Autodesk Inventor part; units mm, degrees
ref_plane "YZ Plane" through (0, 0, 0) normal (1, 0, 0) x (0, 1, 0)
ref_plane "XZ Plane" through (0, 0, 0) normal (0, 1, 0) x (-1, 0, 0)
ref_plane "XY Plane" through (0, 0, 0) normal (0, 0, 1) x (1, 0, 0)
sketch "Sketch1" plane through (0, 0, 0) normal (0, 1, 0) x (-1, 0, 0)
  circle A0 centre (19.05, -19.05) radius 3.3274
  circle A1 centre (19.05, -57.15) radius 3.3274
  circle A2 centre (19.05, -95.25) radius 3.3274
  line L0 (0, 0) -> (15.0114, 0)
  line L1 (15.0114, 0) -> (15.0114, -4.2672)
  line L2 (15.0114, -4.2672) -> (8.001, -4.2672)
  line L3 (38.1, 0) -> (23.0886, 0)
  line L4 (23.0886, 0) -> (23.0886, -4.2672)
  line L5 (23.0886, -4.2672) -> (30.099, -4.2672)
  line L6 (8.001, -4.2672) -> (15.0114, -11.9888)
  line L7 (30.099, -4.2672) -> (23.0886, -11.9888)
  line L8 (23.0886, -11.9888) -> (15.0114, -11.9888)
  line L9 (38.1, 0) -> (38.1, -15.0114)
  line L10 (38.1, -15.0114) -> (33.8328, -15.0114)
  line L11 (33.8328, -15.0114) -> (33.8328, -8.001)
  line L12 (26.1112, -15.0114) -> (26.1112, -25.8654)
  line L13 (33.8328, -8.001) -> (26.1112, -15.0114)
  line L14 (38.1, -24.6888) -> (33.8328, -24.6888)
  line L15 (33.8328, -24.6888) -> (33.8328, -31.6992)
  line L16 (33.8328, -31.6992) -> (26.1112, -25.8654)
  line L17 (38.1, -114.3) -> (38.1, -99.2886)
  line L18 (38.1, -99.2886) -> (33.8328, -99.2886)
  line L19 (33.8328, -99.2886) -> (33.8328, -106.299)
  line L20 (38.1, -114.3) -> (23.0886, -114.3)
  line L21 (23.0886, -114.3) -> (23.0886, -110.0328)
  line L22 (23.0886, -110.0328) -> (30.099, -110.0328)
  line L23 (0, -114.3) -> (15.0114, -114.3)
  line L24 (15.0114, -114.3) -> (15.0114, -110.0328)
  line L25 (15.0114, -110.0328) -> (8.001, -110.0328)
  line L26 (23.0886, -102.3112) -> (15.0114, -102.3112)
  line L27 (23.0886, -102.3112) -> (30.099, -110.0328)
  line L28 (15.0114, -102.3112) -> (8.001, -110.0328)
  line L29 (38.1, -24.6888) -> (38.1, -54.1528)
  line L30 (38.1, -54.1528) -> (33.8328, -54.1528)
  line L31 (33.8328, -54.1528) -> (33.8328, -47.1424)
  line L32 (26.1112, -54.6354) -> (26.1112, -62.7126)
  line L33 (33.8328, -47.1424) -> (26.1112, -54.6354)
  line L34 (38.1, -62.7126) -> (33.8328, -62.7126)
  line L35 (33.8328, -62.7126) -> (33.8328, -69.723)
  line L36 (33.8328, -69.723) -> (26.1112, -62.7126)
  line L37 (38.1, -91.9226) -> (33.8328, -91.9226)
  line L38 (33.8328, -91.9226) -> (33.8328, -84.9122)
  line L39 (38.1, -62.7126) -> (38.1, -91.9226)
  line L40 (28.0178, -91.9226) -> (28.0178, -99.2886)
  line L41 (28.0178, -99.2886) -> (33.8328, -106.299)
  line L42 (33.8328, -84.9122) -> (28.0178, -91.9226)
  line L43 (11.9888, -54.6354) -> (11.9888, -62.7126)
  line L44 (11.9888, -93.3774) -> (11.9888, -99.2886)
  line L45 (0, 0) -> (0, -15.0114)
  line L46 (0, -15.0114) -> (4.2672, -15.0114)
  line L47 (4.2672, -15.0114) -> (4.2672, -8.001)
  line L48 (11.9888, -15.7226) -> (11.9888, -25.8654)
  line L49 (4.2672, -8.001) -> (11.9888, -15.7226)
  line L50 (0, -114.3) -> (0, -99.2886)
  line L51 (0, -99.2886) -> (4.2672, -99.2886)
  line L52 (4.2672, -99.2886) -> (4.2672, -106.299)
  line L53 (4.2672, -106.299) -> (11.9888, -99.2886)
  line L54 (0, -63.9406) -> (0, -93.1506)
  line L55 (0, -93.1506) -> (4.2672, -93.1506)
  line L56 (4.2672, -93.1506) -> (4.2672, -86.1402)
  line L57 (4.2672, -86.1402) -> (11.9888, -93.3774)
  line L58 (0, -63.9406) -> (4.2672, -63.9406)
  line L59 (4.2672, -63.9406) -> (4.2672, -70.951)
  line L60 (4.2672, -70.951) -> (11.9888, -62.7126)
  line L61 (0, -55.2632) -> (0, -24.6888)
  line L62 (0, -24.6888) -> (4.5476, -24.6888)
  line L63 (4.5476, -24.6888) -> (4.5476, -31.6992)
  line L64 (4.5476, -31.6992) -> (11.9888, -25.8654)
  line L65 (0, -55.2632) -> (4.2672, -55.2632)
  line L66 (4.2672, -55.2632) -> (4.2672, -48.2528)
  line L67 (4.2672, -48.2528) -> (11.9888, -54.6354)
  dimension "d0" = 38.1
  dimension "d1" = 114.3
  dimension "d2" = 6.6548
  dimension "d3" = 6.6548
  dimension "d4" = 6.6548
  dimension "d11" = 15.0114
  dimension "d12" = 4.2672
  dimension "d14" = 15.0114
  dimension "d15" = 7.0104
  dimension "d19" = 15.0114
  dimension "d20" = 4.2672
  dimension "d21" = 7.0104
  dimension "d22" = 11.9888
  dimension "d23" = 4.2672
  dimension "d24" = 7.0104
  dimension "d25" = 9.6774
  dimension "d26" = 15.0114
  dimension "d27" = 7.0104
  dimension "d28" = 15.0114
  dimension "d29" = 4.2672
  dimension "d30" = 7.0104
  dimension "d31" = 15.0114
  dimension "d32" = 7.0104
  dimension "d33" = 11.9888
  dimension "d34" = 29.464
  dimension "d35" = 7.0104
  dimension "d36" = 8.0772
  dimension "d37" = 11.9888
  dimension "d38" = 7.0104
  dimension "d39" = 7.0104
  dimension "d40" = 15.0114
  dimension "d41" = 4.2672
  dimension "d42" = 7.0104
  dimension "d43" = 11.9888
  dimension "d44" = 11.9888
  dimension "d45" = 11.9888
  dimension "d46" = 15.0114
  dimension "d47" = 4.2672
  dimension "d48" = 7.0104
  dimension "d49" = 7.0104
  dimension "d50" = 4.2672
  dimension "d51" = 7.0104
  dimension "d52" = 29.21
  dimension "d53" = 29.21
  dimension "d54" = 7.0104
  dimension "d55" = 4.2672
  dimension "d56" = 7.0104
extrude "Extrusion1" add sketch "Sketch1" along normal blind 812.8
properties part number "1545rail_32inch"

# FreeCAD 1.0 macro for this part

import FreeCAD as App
import Part
import Sketcher
from FreeCAD import Vector
Q = App.Units.Quantity

doc = App.newDocument("Part")
params = doc.addObject("Spreadsheet::Sheet", "Params")
for row, (alias, value) in enumerate([
    ("sketch1_diameter", "0.262 in"),
    ("sketch1_height", "1.15 in"),
    ("sketch1_height2", "1.16 in"),
    ("sketch1_width", "0.591 in"),
    ("sketch1_width2", "0.168 in"),
    ("pad1_length", "32 in"),
], start=1):
    params.set(f"A{row}", alias)
    params.set(f"B{row}", "=" + value)
    params.setAlias(f"B{row}", alias)

body = doc.addObject("PartDesign::Body", "Body")

sketch1 = doc.addObject("Sketcher::SketchObject", "Sketch")
body.addObject(sketch1)
sketch1.AttachmentSupport = (doc.XZ_Plane, [""])
sketch1.MapMode = "FlatFace"
sketch1.addGeometry([
    Part.LineSegment(Vector(-15, 0, 0), Vector(0, 0, 0)),
    Part.LineSegment(Vector(0, 0, 0), Vector(0, -15, 0)),
    Part.LineSegment(Vector(0, -15, 0), Vector(-4.3, -15, 0)),
    Part.LineSegment(Vector(-4.3, -15, 0), Vector(-4.3, -8, 0)),
    Part.LineSegment(Vector(-4.3, -8, 0), Vector(-12, -15.7, 0)),
    Part.LineSegment(Vector(-12, -15.7, 0), Vector(-12, -25.9, 0)),
    Part.LineSegment(Vector(-12, -25.9, 0), Vector(-4.5, -31.7, 0)),
    Part.LineSegment(Vector(-4.5, -31.7, 0), Vector(-4.5, -24.7, 0)),
    Part.LineSegment(Vector(-4.5, -24.7, 0), Vector(0, -24.7, 0)),
    Part.LineSegment(Vector(0, -24.7, 0), Vector(0, -55.3, 0)),
    Part.LineSegment(Vector(0, -55.3, 0), Vector(-4.3, -55.3, 0)),
    Part.LineSegment(Vector(-4.3, -55.3, 0), Vector(-4.3, -48.3, 0)),
    Part.LineSegment(Vector(-4.3, -48.3, 0), Vector(-12, -54.6, 0)),
    Part.LineSegment(Vector(-12, -54.6, 0), Vector(-12, -62.7, 0)),
    Part.LineSegment(Vector(-12, -62.7, 0), Vector(-4.3, -71, 0)),
    Part.LineSegment(Vector(-4.3, -71, 0), Vector(-4.3, -63.9, 0)),
    Part.LineSegment(Vector(-4.3, -63.9, 0), Vector(0, -63.9, 0)),
    Part.LineSegment(Vector(0, -63.9, 0), Vector(0, -93.2, 0)),
    Part.LineSegment(Vector(0, -93.2, 0), Vector(-4.3, -93.2, 0)),
    Part.LineSegment(Vector(-4.3, -93.2, 0), Vector(-4.3, -86.1, 0)),
    Part.LineSegment(Vector(-4.3, -86.1, 0), Vector(-12, -93.4, 0)),
    Part.LineSegment(Vector(-12, -93.4, 0), Vector(-12, -99.3, 0)),
    Part.LineSegment(Vector(-12, -99.3, 0), Vector(-4.3, -106.3, 0)),
    Part.LineSegment(Vector(-4.3, -106.3, 0), Vector(-4.3, -99.3, 0)),
    Part.LineSegment(Vector(-4.3, -99.3, 0), Vector(0, -99.3, 0)),
    Part.LineSegment(Vector(0, -99.3, 0), Vector(0, -114.3, 0)),
    Part.LineSegment(Vector(0, -114.3, 0), Vector(-15, -114.3, 0)),
    Part.LineSegment(Vector(-15, -114.3, 0), Vector(-15, -110, 0)),
    Part.LineSegment(Vector(-15, -110, 0), Vector(-8, -110, 0)),
    Part.LineSegment(Vector(-8, -110, 0), Vector(-15, -102.3, 0)),
    Part.LineSegment(Vector(-15, -102.3, 0), Vector(-23.1, -102.3, 0)),
    Part.LineSegment(Vector(-23.1, -102.3, 0), Vector(-30.1, -110, 0)),
    Part.LineSegment(Vector(-30.1, -110, 0), Vector(-23.1, -110, 0)),
    Part.LineSegment(Vector(-23.1, -110, 0), Vector(-23.1, -114.3, 0)),
    Part.LineSegment(Vector(-23.1, -114.3, 0), Vector(-38.1, -114.3, 0)),
    Part.LineSegment(Vector(-38.1, -114.3, 0), Vector(-38.1, -99.3, 0)),
    Part.LineSegment(Vector(-38.1, -99.3, 0), Vector(-33.8, -99.3, 0)),
    Part.LineSegment(Vector(-33.8, -99.3, 0), Vector(-33.8, -106.3, 0)),
    Part.LineSegment(Vector(-33.8, -106.3, 0), Vector(-28, -99.3, 0)),
    Part.LineSegment(Vector(-28, -99.3, 0), Vector(-28, -91.9, 0)),
    Part.LineSegment(Vector(-28, -91.9, 0), Vector(-33.8, -84.9, 0)),
    Part.LineSegment(Vector(-33.8, -84.9, 0), Vector(-33.8, -91.9, 0)),
    Part.LineSegment(Vector(-33.8, -91.9, 0), Vector(-38.1, -91.9, 0)),
    Part.LineSegment(Vector(-38.1, -91.9, 0), Vector(-38.1, -62.7, 0)),
    Part.LineSegment(Vector(-38.1, -62.7, 0), Vector(-33.8, -62.7, 0)),
    Part.LineSegment(Vector(-33.8, -62.7, 0), Vector(-33.8, -69.7, 0)),
    Part.LineSegment(Vector(-33.8, -69.7, 0), Vector(-26.1, -62.7, 0)),
    Part.LineSegment(Vector(-26.1, -62.7, 0), Vector(-26.1, -54.6, 0)),
    Part.LineSegment(Vector(-26.1, -54.6, 0), Vector(-33.8, -47.1, 0)),
    Part.LineSegment(Vector(-33.8, -47.1, 0), Vector(-33.8, -54.2, 0)),
    Part.LineSegment(Vector(-33.8, -54.2, 0), Vector(-38.1, -54.2, 0)),
    Part.LineSegment(Vector(-38.1, -54.2, 0), Vector(-38.1, -24.7, 0)),
    Part.LineSegment(Vector(-38.1, -24.7, 0), Vector(-33.8, -24.7, 0)),
    Part.LineSegment(Vector(-33.8, -24.7, 0), Vector(-33.8, -31.7, 0)),
    Part.LineSegment(Vector(-33.8, -31.7, 0), Vector(-26.1, -25.9, 0)),
    Part.LineSegment(Vector(-26.1, -25.9, 0), Vector(-26.1, -15, 0)),
    Part.LineSegment(Vector(-26.1, -15, 0), Vector(-33.8, -8, 0)),
    Part.LineSegment(Vector(-33.8, -8, 0), Vector(-33.8, -15, 0)),
    Part.LineSegment(Vector(-33.8, -15, 0), Vector(-38.1, -15, 0)),
    Part.LineSegment(Vector(-38.1, -15, 0), Vector(-38.1, 0, 0)),
    Part.LineSegment(Vector(-38.1, 0, 0), Vector(-23.1, 0, 0)),
    Part.LineSegment(Vector(-23.1, 0, 0), Vector(-23.1, -4.3, 0)),
    Part.LineSegment(Vector(-23.1, -4.3, 0), Vector(-30.1, -4.3, 0)),
    Part.LineSegment(Vector(-30.1, -4.3, 0), Vector(-23.1, -12, 0)),
    Part.LineSegment(Vector(-23.1, -12, 0), Vector(-15, -12, 0)),
    Part.LineSegment(Vector(-15, -12, 0), Vector(-8, -4.3, 0)),
    Part.LineSegment(Vector(-8, -4.3, 0), Vector(-15, -4.3, 0)),
    Part.LineSegment(Vector(-15, -4.3, 0), Vector(-15, 0, 0)),
    Part.Circle(Vector(-19.1, -95.2, 0), Vector(0, 0, 1), 3.3),
    Part.Circle(Vector(-19.1, -57.1, 0), Vector(0, 0, 1), 3.3),
    Part.Circle(Vector(-19.1, -19.1, 0), Vector(0, 0, 1), 3.3),
], False)
sketch1.addConstraint([
    Sketcher.Constraint("Coincident", 0, 2, 1, 1),
    Sketcher.Constraint("Coincident", 1, 2, 2, 1),
    Sketcher.Constraint("Coincident", 2, 2, 3, 1),
    Sketcher.Constraint("Coincident", 3, 2, 4, 1),
    Sketcher.Constraint("Coincident", 4, 2, 5, 1),
    Sketcher.Constraint("Coincident", 5, 2, 6, 1),
    Sketcher.Constraint("Coincident", 6, 2, 7, 1),
    Sketcher.Constraint("Coincident", 7, 2, 8, 1),
    Sketcher.Constraint("Coincident", 8, 2, 9, 1),
    Sketcher.Constraint("Coincident", 9, 2, 10, 1),
    Sketcher.Constraint("Coincident", 10, 2, 11, 1),
    Sketcher.Constraint("Coincident", 11, 2, 12, 1),
    Sketcher.Constraint("Coincident", 12, 2, 13, 1),
    Sketcher.Constraint("Coincident", 13, 2, 14, 1),
    Sketcher.Constraint("Coincident", 14, 2, 15, 1),
    Sketcher.Constraint("Coincident", 15, 2, 16, 1),
    Sketcher.Constraint("Coincident", 16, 2, 17, 1),
    Sketcher.Constraint("Coincident", 17, 2, 18, 1),
    Sketcher.Constraint("Coincident", 18, 2, 19, 1),
    Sketcher.Constraint("Coincident", 19, 2, 20, 1),
    Sketcher.Constraint("Coincident", 20, 2, 21, 1),
    Sketcher.Constraint("Coincident", 21, 2, 22, 1),
    Sketcher.Constraint("Coincident", 22, 2, 23, 1),
    Sketcher.Constraint("Coincident", 23, 2, 24, 1),
    Sketcher.Constraint("Coincident", 24, 2, 25, 1),
    Sketcher.Constraint("Coincident", 25, 2, 26, 1),
    Sketcher.Constraint("Coincident", 26, 2, 27, 1),
    Sketcher.Constraint("Coincident", 27, 2, 28, 1),
    Sketcher.Constraint("Coincident", 28, 2, 29, 1),
    Sketcher.Constraint("Coincident", 29, 2, 30, 1),
    Sketcher.Constraint("Coincident", 30, 2, 31, 1),
    Sketcher.Constraint("Coincident", 31, 2, 32, 1),
    Sketcher.Constraint("Coincident", 32, 2, 33, 1),
    Sketcher.Constraint("Coincident", 33, 2, 34, 1),
    Sketcher.Constraint("Coincident", 34, 2, 35, 1),
    Sketcher.Constraint("Coincident", 35, 2, 36, 1),
    Sketcher.Constraint("Coincident", 36, 2, 37, 1),
    Sketcher.Constraint("Coincident", 37, 2, 38, 1),
    Sketcher.Constraint("Coincident", 38, 2, 39, 1),
    Sketcher.Constraint("Coincident", 39, 2, 40, 1),
    Sketcher.Constraint("Coincident", 40, 2, 41, 1),
    Sketcher.Constraint("Coincident", 41, 2, 42, 1),
    Sketcher.Constraint("Coincident", 42, 2, 43, 1),
    Sketcher.Constraint("Coincident", 43, 2, 44, 1),
    Sketcher.Constraint("Coincident", 44, 2, 45, 1),
    Sketcher.Constraint("Coincident", 45, 2, 46, 1),
    Sketcher.Constraint("Coincident", 46, 2, 47, 1),
    Sketcher.Constraint("Coincident", 47, 2, 48, 1),
    Sketcher.Constraint("Coincident", 48, 2, 49, 1),
    Sketcher.Constraint("Coincident", 49, 2, 50, 1),
    Sketcher.Constraint("Coincident", 50, 2, 51, 1),
    Sketcher.Constraint("Coincident", 51, 2, 52, 1),
    Sketcher.Constraint("Coincident", 52, 2, 53, 1),
    Sketcher.Constraint("Coincident", 53, 2, 54, 1),
    Sketcher.Constraint("Coincident", 54, 2, 55, 1),
    Sketcher.Constraint("Coincident", 55, 2, 56, 1),
    Sketcher.Constraint("Coincident", 56, 2, 57, 1),
    Sketcher.Constraint("Coincident", 57, 2, 58, 1),
    Sketcher.Constraint("Coincident", 58, 2, 59, 1),
    Sketcher.Constraint("Coincident", 59, 2, 60, 1),
    Sketcher.Constraint("Coincident", 60, 2, 61, 1),
    Sketcher.Constraint("Coincident", 61, 2, 62, 1),
    Sketcher.Constraint("Coincident", 62, 2, 63, 1),
    Sketcher.Constraint("Coincident", 63, 2, 64, 1),
    Sketcher.Constraint("Coincident", 64, 2, 65, 1),
    Sketcher.Constraint("Coincident", 65, 2, 66, 1),
    Sketcher.Constraint("Coincident", 66, 2, 67, 1),
    Sketcher.Constraint("Coincident", 67, 2, 0, 1),
    Sketcher.Constraint("Horizontal", 0),
    Sketcher.Constraint("Vertical", 1),
    Sketcher.Constraint("Horizontal", 2),
    Sketcher.Constraint("Vertical", 3),
    Sketcher.Constraint("Vertical", 5),
    Sketcher.Constraint("Vertical", 7),
    Sketcher.Constraint("Horizontal", 8),
    Sketcher.Constraint("Vertical", 9),
    Sketcher.Constraint("Horizontal", 10),
    Sketcher.Constraint("Vertical", 11),
    Sketcher.Constraint("Vertical", 13),
    Sketcher.Constraint("Vertical", 15),
    Sketcher.Constraint("Horizontal", 16),
    Sketcher.Constraint("Vertical", 17),
    Sketcher.Constraint("Horizontal", 18),
    Sketcher.Constraint("Vertical", 19),
    Sketcher.Constraint("Vertical", 21),
    Sketcher.Constraint("Vertical", 23),
    Sketcher.Constraint("Horizontal", 24),
    Sketcher.Constraint("Vertical", 25),
    Sketcher.Constraint("Horizontal", 26),
    Sketcher.Constraint("Vertical", 27),
    Sketcher.Constraint("Horizontal", 28),
    Sketcher.Constraint("Horizontal", 30),
    Sketcher.Constraint("Horizontal", 32),
    Sketcher.Constraint("Vertical", 33),
    Sketcher.Constraint("Horizontal", 34),
    Sketcher.Constraint("Vertical", 35),
    Sketcher.Constraint("Horizontal", 36),
    Sketcher.Constraint("Vertical", 37),
    Sketcher.Constraint("Vertical", 39),
    Sketcher.Constraint("Vertical", 41),
    Sketcher.Constraint("Horizontal", 42),
    Sketcher.Constraint("Vertical", 43),
    Sketcher.Constraint("Horizontal", 44),
    Sketcher.Constraint("Vertical", 45),
    Sketcher.Constraint("Vertical", 47),
    Sketcher.Constraint("Vertical", 49),
    Sketcher.Constraint("Horizontal", 50),
    Sketcher.Constraint("Vertical", 51),
    Sketcher.Constraint("Horizontal", 52),
    Sketcher.Constraint("Vertical", 53),
    Sketcher.Constraint("Vertical", 55),
    Sketcher.Constraint("Vertical", 57),
    Sketcher.Constraint("Horizontal", 58),
    Sketcher.Constraint("Vertical", 59),
    Sketcher.Constraint("Horizontal", 60),
    Sketcher.Constraint("Vertical", 61),
    Sketcher.Constraint("Horizontal", 62),
    Sketcher.Constraint("Horizontal", 64),
    Sketcher.Constraint("Horizontal", 66),
    Sketcher.Constraint("Vertical", 67),
    Sketcher.Constraint("Coincident", 0, 2, -1, 1),
    Sketcher.Constraint("Equal", 68, 69),
    Sketcher.Constraint("Equal", 69, 70),
    Sketcher.Constraint("PointOnObject", 8, 2, -2),
    Sketcher.Constraint("PointOnObject", 16, 2, -2),
    Sketcher.Constraint("PointOnObject", 24, 2, -2),
    Sketcher.Constraint("PointOnObject", 59, 2, -1),
    Sketcher.Constraint("Perpendicular", 14, 20),
    Sketcher.Constraint("Perpendicular", 22, 31),
    Sketcher.Constraint("Perpendicular", 29, 46),
    Sketcher.Constraint("Perpendicular", 31, 56),
    Sketcher.Constraint("Perpendicular", 46, 63),
    Sketcher.Constraint("Perpendicular", 56, 65),
    Sketcher.Constraint("Horizontal", 21, 2, 23, 2),
    Sketcher.Constraint("Horizontal", 28, 2, 31, 2),
    Sketcher.Constraint("Horizontal", 26, 2, 33, 2),
    Sketcher.Constraint("Horizontal", 24, 2, 35, 2),
    Sketcher.Constraint("Horizontal", 22, 2, 37, 2),
    Sketcher.Constraint("Horizontal", 36, 2, 38, 2),
    Sketcher.Constraint("Horizontal", 39, 2, 41, 2),
    Sketcher.Constraint("Horizontal", 13, 2, 43, 2),
    Sketcher.Constraint("Horizontal", 44, 2, 46, 2),
    Sketcher.Constraint("Horizontal", 12, 2, 47, 2),
    Sketcher.Constraint("Horizontal", 8, 2, 51, 2),
    Sketcher.Constraint("Horizontal", 6, 2, 53, 2),
    Sketcher.Constraint("Horizontal", 5, 2, 54, 2),
    Sketcher.Constraint("Horizontal", 2, 2, 55, 2),
    Sketcher.Constraint("Horizontal", 3, 2, 56, 2),
    Sketcher.Constraint("Horizontal", 55, 2, 57, 2),
    Sketcher.Constraint("Horizontal", 62, 2, 65, 2),
    Sketcher.Constraint("Vertical", 68, 3, 69, 3),
    Sketcher.Constraint("Vertical", 69, 3, 70, 3),
    Sketcher.Constraint("Vertical", 3, 2, 10, 2),
    Sketcher.Constraint("Vertical", 5, 2, 12, 2),
    Sketcher.Constraint("Vertical", 11, 2, 14, 2),
    Sketcher.Constraint("Vertical", 15, 2, 18, 2),
    Sketcher.Constraint("Vertical", 13, 2, 20, 2),
    Sketcher.Constraint("Vertical", 19, 2, 22, 2),
    Sketcher.Constraint("Vertical", 27, 2, 29, 2),
    Sketcher.Constraint("Vertical", 30, 2, 32, 2),
    Sketcher.Constraint("Vertical", 37, 2, 40, 2),
    Sketcher.Constraint("Vertical", 35, 2, 42, 2),
    Sketcher.Constraint("Vertical", 41, 2, 44, 2),
    Sketcher.Constraint("Vertical", 45, 2, 48, 2),
    Sketcher.Constraint("Vertical", 43, 2, 50, 2),
    Sketcher.Constraint("Vertical", 49, 2, 52, 2),
    Sketcher.Constraint("Vertical", 47, 2, 54, 2),
    Sketcher.Constraint("Vertical", 53, 2, 56, 2),
    Sketcher.Constraint("Vertical", 51, 2, 58, 2),
    Sketcher.Constraint("Vertical", 33, 2, 60, 2),
    Sketcher.Constraint("Vertical", 31, 2, 62, 2),
    Sketcher.Constraint("Vertical", 61, 2, 63, 2),
    Sketcher.Constraint("Vertical", 29, 2, 64, 2),
    Sketcher.Constraint("Vertical", 28, 2, 65, 2),
    Sketcher.Constraint("Vertical", 64, 2, 66, 2),
    Sketcher.Constraint("Equal", 26, 34),
    Sketcher.Constraint("Equal", 24, 36),
    Sketcher.Constraint("Equal", 60, 1),
    Sketcher.Constraint("Equal", 66, 3),
    Sketcher.Constraint("Equal", 3, 7),
    Sketcher.Constraint("Equal", 7, 11),
    Sketcher.Constraint("Equal", 64, 13),
    Sketcher.Constraint("Equal", 11, 15),
    Sketcher.Constraint("Equal", 15, 19),
    Sketcher.Constraint("Equal", 19, 23),
    Sketcher.Constraint("Equal", 1, 25),
    Sketcher.Constraint("Equal", 58, 27),
    Sketcher.Constraint("Equal", 37, 41),
    Sketcher.Constraint("Equal", 17, 43),
    Sketcher.Constraint("Equal", 45, 49),
    Sketcher.Constraint("Equal", 33, 61),
    Sketcher.Constraint("Diameter", 68, Q("0.262 in")),
    Sketcher.Constraint("DistanceY", 17, 2, 17, 1, Q("1.15 in")),
    Sketcher.Constraint("DistanceY", 51, 1, 51, 2, Q("1.16 in")),
    Sketcher.Constraint("DistanceY", 25, 2, -1, 1, Q("4.5 in")),
    Sketcher.Constraint("DistanceX", 34, 2, -1, 1, Q("1.5 in")),
    Sketcher.Constraint("DistanceX", 0, 1, 0, 2, Q("0.591 in")),
    Sketcher.Constraint("DistanceX", 2, 2, 2, 1, Q("0.168 in")),
    Sketcher.Constraint("DistanceX", 28, 1, 28, 2, Q("0.276 in")),
    Sketcher.Constraint("Distance", 54, Q("0.381 in")),
    Sketcher.Constraint("DistanceX", 4, 2, -1, 1, Q("0.472 in")),
    Sketcher.Constraint("Angle", 4, Q("-135 deg")),
    Sketcher.Constraint("DistanceY", 39, 1, 39, 2, Q("0.29 in")),
    Sketcher.Constraint("DistanceX", 68, 3, -1, 1, Q("0.75 in")),
    Sketcher.Constraint("DistanceY", 68, 3, -1, 1, Q("3.75 in")),
    Sketcher.Constraint("DistanceY", 69, 3, -1, 1, Q("2.25 in")),
    Sketcher.Constraint("DistanceY", 70, 3, -1, 1, Q("0.75 in")),
    Sketcher.Constraint("Angle", 48, Q("135.8608 deg")),
    Sketcher.Constraint("Distance", 12, Q("0.3944 in")),
    Sketcher.Constraint("Distance", 38, Q("0.3586 in")),
    Sketcher.Constraint("DistanceX", 8, 1, 8, 2, 4.5476),
    Sketcher.Constraint("DistanceY", 21, 2, 21, 1, 5.9112),
])
sketch1.setExpression("Constraints[191]", "Params.sketch1_diameter")
sketch1.setExpression("Constraints[192]", "Params.sketch1_height")
sketch1.setExpression("Constraints[193]", "Params.sketch1_height2")
sketch1.setExpression("Constraints[196]", "Params.sketch1_width")
sketch1.setExpression("Constraints[197]", "Params.sketch1_width2")
pad1 = doc.addObject("PartDesign::Pad", "Pad")
body.addObject(pad1)
pad1.Profile = sketch1
pad1.setExpression("Length", "Params.pad1_length")
pad1.Reversed = True

doc.recompute()
